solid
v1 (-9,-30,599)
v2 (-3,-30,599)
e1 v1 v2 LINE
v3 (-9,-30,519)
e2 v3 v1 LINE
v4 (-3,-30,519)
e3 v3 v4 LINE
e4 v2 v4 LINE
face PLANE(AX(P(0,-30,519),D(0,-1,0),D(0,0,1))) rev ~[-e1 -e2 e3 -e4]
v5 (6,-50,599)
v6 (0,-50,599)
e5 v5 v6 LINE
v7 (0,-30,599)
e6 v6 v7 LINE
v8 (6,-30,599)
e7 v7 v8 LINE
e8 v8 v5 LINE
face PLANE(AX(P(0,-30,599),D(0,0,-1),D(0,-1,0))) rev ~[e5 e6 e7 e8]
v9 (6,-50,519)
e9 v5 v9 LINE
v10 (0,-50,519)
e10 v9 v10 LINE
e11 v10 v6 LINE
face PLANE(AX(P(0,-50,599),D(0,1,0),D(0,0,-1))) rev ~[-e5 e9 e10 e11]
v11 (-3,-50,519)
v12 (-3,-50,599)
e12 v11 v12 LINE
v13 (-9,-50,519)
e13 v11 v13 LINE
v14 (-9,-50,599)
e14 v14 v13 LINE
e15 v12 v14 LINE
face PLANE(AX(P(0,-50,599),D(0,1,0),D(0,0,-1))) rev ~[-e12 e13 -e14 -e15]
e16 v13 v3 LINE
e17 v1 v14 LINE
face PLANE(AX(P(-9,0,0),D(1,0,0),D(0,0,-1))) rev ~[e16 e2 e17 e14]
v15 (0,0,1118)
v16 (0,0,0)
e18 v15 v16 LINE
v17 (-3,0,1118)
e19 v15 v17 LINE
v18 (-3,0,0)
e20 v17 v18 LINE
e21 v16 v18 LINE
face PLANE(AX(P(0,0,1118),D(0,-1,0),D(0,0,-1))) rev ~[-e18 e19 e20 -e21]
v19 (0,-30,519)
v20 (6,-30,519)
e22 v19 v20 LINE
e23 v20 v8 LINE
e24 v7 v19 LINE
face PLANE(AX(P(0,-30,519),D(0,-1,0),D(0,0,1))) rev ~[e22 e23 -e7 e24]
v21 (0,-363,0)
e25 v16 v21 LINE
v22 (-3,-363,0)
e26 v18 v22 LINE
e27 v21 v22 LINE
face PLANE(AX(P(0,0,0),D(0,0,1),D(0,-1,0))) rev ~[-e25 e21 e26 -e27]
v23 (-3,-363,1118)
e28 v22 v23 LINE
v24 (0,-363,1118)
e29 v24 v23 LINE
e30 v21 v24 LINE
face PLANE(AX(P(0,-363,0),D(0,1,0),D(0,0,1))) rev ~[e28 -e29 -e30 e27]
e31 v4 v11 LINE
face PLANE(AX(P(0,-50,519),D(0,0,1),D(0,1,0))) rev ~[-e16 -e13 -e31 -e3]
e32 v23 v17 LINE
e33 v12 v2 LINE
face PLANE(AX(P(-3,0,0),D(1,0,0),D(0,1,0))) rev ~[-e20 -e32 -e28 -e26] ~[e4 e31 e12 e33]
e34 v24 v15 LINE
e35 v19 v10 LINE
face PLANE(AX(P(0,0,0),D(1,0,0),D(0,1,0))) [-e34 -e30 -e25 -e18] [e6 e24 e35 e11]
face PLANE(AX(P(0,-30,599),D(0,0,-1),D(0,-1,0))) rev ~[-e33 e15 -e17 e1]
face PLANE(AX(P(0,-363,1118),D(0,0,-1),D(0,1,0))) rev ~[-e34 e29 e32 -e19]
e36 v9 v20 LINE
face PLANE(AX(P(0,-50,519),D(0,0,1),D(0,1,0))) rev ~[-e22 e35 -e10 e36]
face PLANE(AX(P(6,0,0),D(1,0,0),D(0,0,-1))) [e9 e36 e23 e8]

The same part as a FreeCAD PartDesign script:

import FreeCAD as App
import Part
import Sketcher
from FreeCAD import Vector

doc = App.newDocument("Part")
body = doc.addObject("PartDesign::Body", "Body")

sketch1 = doc.addObject("Sketcher::SketchObject", "Sketch")
body.addObject(sketch1)
sketch1.AttachmentSupport = (doc.YZ_Plane, [""])
sketch1.MapMode = "FlatFace"
sketch1.addGeometry([
    Part.LineSegment(Vector(-363, 0, 0), Vector(0, 0, 0)),
    Part.LineSegment(Vector(0, 0, 0), Vector(0, 1118, 0)),
    Part.LineSegment(Vector(0, 1118, 0), Vector(-363, 1118, 0)),
    Part.LineSegment(Vector(-363, 1118, 0), Vector(-363, 0, 0)),
], False)
sketch1.addConstraint([
    Sketcher.Constraint("Coincident", 0, 2, 1, 1),
    Sketcher.Constraint("Coincident", 1, 2, 2, 1),
    Sketcher.Constraint("Coincident", 2, 2, 3, 1),
    Sketcher.Constraint("Coincident", 3, 2, 0, 1),
    Sketcher.Constraint("Horizontal", 0),
    Sketcher.Constraint("Vertical", 1),
    Sketcher.Constraint("Horizontal", 2),
    Sketcher.Constraint("Vertical", 3),
    Sketcher.Constraint("Coincident", 0, 2, -1, 1),
    Sketcher.Constraint("DistanceX", 0, 1, 0, 2, 363.0),
    Sketcher.Constraint("DistanceY", 1, 1, 1, 2, 1118.0),
])
pad1 = doc.addObject("PartDesign::Pad", "Pad")
body.addObject(pad1)
pad1.Profile = sketch1
pad1.Length = 3
pad1.Reversed = True

sketch2 = doc.addObject("Sketcher::SketchObject", "Sketch001")
body.addObject(sketch2)
sketch2.AttachmentSupport = (doc.YZ_Plane, [""])
sketch2.MapMode = "FlatFace"
sketch2.addGeometry([
    Part.LineSegment(Vector(-50, 519, 0), Vector(-30, 519, 0)),
    Part.LineSegment(Vector(-30, 519, 0), Vector(-30, 599, 0)),
    Part.LineSegment(Vector(-30, 599, 0), Vector(-50, 599, 0)),
    Part.LineSegment(Vector(-50, 599, 0), Vector(-50, 519, 0)),
], False)
sketch2.addConstraint([
    Sketcher.Constraint("Coincident", 0, 2, 1, 1),
    Sketcher.Constraint("Coincident", 1, 2, 2, 1),
    Sketcher.Constraint("Coincident", 2, 2, 3, 1),
    Sketcher.Constraint("Coincident", 3, 2, 0, 1),
    Sketcher.Constraint("Horizontal", 0),
    Sketcher.Constraint("Vertical", 1),
    Sketcher.Constraint("Horizontal", 2),
    Sketcher.Constraint("Vertical", 3),
    Sketcher.Constraint("DistanceX", 0, 1, 0, 2, 20.0),
    Sketcher.Constraint("DistanceY", 1, 1, 1, 2, 80.0),
    Sketcher.Constraint("DistanceX", 0, 2, -1, 1, 30.0),
    Sketcher.Constraint("DistanceY", -1, 1, 0, 2, 519.0),
])
pad2 = doc.addObject("PartDesign::Pad", "Pad001")
body.addObject(pad2)
pad2.Profile = sketch2
pad2.Type = "TwoLengths"
pad2.Length = 6
pad2.Length2 = 9

doc.recompute()
